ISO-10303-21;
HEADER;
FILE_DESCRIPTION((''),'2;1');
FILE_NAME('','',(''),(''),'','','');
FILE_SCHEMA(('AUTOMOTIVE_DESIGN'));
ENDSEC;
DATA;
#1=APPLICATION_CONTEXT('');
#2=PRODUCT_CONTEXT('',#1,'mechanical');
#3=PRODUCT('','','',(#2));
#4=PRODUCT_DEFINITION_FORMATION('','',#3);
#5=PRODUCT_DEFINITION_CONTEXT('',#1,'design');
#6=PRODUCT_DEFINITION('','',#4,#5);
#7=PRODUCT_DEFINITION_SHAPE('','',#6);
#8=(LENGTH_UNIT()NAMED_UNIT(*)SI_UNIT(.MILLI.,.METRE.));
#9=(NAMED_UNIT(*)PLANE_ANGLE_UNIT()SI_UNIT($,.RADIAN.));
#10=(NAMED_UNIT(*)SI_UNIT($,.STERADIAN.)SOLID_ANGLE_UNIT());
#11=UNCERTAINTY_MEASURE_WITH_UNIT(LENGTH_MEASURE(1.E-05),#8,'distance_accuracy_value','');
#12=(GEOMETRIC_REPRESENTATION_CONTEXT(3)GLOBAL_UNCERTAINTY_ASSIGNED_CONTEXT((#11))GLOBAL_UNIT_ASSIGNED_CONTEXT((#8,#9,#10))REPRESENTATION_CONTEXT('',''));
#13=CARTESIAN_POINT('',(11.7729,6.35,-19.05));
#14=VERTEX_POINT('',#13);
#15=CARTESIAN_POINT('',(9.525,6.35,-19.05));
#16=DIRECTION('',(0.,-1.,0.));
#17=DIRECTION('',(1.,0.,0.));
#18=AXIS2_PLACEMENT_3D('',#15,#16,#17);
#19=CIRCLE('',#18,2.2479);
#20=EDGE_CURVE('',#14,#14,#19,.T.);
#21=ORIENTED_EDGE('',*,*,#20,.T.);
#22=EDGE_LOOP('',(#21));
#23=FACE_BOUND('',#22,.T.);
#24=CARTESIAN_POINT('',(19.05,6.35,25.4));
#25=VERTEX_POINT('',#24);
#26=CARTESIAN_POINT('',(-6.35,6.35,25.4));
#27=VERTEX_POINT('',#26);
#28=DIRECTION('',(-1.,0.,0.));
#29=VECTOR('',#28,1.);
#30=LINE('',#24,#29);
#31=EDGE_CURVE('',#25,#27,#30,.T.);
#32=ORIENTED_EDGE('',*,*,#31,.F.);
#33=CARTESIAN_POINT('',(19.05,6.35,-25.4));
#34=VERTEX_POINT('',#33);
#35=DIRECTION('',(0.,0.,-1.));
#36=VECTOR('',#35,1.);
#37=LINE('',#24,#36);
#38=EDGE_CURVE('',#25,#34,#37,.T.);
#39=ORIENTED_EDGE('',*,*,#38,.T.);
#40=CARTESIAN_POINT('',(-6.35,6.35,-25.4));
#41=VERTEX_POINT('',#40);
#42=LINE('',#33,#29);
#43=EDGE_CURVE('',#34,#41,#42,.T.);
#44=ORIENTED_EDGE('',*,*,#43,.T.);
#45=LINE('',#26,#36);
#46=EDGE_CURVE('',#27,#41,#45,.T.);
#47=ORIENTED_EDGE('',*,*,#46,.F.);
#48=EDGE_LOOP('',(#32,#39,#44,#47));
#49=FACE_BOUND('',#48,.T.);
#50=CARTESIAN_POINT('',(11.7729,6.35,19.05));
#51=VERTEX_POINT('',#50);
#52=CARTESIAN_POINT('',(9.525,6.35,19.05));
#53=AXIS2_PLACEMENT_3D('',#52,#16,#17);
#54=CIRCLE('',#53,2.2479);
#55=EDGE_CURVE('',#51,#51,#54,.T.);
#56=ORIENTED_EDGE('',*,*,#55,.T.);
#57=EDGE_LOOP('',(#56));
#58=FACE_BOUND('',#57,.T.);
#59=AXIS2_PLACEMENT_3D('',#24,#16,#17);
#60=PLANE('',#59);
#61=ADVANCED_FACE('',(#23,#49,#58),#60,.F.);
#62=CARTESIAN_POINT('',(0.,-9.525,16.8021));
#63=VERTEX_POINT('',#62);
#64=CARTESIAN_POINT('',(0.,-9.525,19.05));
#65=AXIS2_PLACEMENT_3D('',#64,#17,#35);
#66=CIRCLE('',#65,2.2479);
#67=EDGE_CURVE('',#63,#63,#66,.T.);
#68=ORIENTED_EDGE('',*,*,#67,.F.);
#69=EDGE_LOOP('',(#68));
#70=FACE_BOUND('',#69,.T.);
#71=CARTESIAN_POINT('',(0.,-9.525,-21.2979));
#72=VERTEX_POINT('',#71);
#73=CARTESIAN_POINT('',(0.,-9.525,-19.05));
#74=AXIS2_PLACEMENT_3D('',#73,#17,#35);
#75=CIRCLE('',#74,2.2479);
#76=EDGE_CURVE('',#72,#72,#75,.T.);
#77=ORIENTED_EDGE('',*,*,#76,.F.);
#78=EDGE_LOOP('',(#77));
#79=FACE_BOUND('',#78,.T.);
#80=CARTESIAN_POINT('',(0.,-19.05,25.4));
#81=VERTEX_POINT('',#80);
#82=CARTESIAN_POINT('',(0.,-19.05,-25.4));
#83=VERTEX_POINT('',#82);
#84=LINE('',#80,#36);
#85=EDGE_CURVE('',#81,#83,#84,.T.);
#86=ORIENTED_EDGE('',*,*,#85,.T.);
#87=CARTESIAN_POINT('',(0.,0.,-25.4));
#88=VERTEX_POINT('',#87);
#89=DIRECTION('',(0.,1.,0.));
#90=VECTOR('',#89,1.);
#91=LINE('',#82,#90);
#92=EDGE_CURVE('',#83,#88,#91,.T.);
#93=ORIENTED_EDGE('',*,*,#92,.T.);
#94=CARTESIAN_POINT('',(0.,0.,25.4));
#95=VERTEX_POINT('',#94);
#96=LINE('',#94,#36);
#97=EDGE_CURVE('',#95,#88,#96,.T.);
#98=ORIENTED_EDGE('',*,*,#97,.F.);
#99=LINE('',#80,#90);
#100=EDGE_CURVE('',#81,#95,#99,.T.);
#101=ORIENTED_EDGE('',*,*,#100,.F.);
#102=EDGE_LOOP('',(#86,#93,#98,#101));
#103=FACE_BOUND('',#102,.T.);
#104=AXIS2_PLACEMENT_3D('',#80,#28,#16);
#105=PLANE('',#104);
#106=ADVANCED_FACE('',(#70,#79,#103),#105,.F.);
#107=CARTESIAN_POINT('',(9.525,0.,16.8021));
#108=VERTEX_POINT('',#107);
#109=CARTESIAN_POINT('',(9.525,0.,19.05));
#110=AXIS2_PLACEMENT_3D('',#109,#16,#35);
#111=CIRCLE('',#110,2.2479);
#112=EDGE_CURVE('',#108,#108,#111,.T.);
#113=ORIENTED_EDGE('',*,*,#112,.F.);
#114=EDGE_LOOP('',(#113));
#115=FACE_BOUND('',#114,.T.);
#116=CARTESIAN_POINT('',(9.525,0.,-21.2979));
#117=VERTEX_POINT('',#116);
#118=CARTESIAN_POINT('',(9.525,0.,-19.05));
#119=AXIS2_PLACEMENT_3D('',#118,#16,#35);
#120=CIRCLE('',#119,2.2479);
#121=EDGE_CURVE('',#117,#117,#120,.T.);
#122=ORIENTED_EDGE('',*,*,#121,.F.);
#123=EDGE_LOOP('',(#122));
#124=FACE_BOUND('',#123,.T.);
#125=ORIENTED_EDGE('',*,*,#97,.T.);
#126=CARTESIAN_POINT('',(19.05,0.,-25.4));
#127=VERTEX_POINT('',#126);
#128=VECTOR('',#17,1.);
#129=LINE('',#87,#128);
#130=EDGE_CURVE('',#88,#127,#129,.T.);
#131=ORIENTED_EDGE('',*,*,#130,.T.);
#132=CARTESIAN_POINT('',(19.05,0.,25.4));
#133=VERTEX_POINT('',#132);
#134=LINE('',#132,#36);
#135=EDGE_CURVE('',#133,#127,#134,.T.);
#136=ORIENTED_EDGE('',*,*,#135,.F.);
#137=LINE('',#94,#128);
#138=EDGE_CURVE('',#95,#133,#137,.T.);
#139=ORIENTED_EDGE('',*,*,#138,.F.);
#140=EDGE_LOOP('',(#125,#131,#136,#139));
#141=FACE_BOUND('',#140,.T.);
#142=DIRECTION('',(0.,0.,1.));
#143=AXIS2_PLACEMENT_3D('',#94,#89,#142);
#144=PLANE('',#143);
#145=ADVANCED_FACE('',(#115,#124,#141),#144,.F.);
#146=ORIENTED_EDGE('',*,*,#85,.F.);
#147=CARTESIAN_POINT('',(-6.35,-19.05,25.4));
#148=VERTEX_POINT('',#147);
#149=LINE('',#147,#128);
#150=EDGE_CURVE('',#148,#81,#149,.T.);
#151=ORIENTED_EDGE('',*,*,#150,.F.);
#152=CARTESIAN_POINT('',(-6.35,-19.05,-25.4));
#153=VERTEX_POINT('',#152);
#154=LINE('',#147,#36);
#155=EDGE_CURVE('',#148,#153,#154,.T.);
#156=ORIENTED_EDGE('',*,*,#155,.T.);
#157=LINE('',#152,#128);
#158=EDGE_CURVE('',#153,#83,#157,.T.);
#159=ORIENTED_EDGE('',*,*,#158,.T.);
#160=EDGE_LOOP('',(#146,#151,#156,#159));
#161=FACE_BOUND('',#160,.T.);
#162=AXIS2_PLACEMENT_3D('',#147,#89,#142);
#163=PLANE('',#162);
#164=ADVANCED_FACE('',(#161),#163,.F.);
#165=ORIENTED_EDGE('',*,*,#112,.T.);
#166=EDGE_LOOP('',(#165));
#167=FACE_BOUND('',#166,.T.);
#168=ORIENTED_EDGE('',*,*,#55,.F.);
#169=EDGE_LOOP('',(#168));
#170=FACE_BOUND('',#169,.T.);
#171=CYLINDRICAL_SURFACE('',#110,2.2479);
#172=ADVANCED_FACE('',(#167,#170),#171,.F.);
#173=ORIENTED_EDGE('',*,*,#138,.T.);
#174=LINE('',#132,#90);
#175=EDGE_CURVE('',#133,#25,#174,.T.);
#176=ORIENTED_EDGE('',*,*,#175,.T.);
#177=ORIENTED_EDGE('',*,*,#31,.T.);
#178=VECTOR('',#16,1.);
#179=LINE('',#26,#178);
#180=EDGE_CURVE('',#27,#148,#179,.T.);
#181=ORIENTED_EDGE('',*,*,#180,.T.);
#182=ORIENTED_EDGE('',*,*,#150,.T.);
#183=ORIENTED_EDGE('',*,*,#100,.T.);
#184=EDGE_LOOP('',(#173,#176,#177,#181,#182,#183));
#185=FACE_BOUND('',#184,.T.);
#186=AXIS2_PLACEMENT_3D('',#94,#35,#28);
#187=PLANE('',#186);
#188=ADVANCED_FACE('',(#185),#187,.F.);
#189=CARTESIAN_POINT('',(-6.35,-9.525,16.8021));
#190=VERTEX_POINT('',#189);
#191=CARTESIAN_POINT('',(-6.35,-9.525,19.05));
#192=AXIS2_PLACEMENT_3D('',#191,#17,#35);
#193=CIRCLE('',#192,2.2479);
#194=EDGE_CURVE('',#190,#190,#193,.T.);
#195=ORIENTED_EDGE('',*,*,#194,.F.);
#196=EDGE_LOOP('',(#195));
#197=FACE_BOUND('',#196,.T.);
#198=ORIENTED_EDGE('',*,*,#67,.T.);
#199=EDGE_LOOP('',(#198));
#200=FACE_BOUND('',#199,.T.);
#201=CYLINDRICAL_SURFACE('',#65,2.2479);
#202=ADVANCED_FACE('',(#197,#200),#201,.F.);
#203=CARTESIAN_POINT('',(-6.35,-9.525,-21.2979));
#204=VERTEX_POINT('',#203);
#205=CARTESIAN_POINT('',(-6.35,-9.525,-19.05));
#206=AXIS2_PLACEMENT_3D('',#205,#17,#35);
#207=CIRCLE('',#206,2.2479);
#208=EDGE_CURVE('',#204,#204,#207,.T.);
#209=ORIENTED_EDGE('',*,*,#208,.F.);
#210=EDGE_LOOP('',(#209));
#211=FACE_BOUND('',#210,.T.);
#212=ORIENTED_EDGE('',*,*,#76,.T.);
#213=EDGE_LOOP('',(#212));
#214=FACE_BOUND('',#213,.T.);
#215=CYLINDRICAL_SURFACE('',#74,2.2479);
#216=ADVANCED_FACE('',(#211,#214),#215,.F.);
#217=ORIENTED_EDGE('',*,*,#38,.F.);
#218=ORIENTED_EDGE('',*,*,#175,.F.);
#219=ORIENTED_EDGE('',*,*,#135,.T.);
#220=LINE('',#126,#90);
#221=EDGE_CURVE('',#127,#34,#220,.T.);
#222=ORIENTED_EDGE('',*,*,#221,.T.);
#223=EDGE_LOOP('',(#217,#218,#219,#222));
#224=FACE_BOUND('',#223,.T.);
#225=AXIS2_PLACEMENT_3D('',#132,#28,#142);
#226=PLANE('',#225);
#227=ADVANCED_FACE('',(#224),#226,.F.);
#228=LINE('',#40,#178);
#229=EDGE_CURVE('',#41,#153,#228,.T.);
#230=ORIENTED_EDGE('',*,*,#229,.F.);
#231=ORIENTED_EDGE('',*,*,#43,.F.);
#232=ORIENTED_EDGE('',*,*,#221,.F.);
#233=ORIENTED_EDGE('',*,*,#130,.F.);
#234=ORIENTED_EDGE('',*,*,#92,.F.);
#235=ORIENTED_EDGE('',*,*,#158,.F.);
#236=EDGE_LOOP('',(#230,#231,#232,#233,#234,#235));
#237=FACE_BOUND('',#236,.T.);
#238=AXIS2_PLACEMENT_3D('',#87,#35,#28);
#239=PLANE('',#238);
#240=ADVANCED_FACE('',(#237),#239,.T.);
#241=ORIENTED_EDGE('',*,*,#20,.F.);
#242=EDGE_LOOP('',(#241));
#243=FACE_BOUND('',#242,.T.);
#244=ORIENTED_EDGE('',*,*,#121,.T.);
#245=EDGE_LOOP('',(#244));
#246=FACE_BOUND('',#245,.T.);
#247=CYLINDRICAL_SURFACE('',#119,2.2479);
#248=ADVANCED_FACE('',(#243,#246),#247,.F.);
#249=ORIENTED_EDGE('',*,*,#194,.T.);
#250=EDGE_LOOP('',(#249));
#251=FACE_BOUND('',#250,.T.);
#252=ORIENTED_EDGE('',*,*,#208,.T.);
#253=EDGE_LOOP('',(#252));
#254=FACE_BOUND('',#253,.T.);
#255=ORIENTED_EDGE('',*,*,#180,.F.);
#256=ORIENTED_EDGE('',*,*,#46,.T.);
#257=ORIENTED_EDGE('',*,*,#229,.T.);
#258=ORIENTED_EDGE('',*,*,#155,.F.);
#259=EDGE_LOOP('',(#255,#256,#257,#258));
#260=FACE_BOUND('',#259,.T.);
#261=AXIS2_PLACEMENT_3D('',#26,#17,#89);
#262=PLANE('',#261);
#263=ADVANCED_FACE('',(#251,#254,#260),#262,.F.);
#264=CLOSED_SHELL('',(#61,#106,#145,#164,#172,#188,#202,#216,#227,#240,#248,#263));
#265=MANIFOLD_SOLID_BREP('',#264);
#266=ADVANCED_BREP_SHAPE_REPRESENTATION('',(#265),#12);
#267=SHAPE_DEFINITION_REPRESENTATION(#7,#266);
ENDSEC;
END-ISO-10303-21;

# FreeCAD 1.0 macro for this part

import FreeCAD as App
import Part
import Sketcher

V = App.Vector
Q = App.Units.Quantity

doc = App.newDocument("Part")
body = doc.addObject("PartDesign::Body", "Body")

sketch1 = body.newObject("Sketcher::SketchObject", "Sketch")
sketch1.AttachmentSupport = (doc.getObject("XY_Plane"), [""])
sketch1.MapMode = "FlatFace"
sketch1.addGeometry([
    Part.LineSegment(V(0, 0, 0), V(19, 0, 0)),
    Part.LineSegment(V(19, 0, 0), V(19, 6, 0)),
    Part.LineSegment(V(19, 6, 0), V(-6, 6, 0)),
    Part.LineSegment(V(-6, 6, 0), V(-6, -19, 0)),
    Part.LineSegment(V(-6, -19, 0), V(0, -19, 0)),
    Part.LineSegment(V(0, -19, 0), V(0, 0, 0)),
], False)
sketch1.addConstraint([
    Sketcher.Constraint("Coincident", 0, 2, 1, 1),
    Sketcher.Constraint("Coincident", 1, 2, 2, 1),
    Sketcher.Constraint("Coincident", 2, 2, 3, 1),
    Sketcher.Constraint("Coincident", 3, 2, 4, 1),
    Sketcher.Constraint("Coincident", 4, 2, 5, 1),
    Sketcher.Constraint("Coincident", 5, 2, 0, 1),
    Sketcher.Constraint("Horizontal", 0),
    Sketcher.Constraint("Vertical", 1),
    Sketcher.Constraint("Horizontal", 2),
    Sketcher.Constraint("Vertical", 3),
    Sketcher.Constraint("Horizontal", 4),
    Sketcher.Constraint("Vertical", 5),
    Sketcher.Constraint("Coincident", 5, 2, -1, 1),
    Sketcher.Constraint("Equal", 4, 1),
    Sketcher.Constraint("Equal", 2, 3),
    Sketcher.Constraint("DistanceX", 2, 2, 2, 1, Q("1 in")),
    Sketcher.Constraint("DistanceX", 0, 1, 0, 2, Q("0.75 in")),
])
pad1 = body.newObject("PartDesign::Pad", "Pad")
pad1.Profile = sketch1
pad1.Length = Q("2 in")
pad1.Midplane = True

sketch2 = body.newObject("Sketcher::SketchObject", "Sketch001")
sketch2.AttachmentSupport = (doc.getObject("XZ_Plane"), [""])
sketch2.MapMode = "FlatFace"
sketch2.addGeometry([
    Part.Circle(V(9.5, 19.1, 0), V(0, 0, 1), 2.2),
    Part.Circle(V(9.5, -19.1, 0), V(0, 0, 1), 2.2),
], False)
sketch2.addConstraint([
    Sketcher.Constraint("Equal", 0, 1),
    Sketcher.Constraint("Symmetric", 0, 3, 1, 3, -1),
    Sketcher.Constraint("Diameter", 0, Q("0.177 in")),
    Sketcher.Constraint("DistanceY", 1, 3, 0, 3, Q("1.5 in")),
    Sketcher.Constraint("DistanceX", -1, 1, 0, 3, Q("0.375 in")),
])
doc.recompute()
hole = body.newObject("PartDesign::Hole", "Hole")
hole.Profile = sketch2
hole.ThreadType = "None"
hole.Diameter = Q("0.177 in")
hole.DepthType = "ThroughAll"

sketch3 = body.newObject("Sketcher::SketchObject", "Sketch002")
sketch3.AttachmentSupport = (doc.getObject("YZ_Plane"), [""])
sketch3.MapMode = "FlatFace"
sketch3.addGeometry([
    Part.Circle(V(-9.5, -19.1, 0), V(0, 0, 1), 2.2),
    Part.Circle(V(-9.5, 19.1, 0), V(0, 0, 1), 2.2),
], False)
sketch3.addConstraint([
    Sketcher.Constraint("Equal", 0, 1),
    Sketcher.Constraint("Symmetric", 0, 3, 1, 3, -1),
    Sketcher.Constraint("Diameter", 0, Q("0.177 in")),
    Sketcher.Constraint("DistanceY", 0, 3, 1, 3, Q("1.5 in")),
    Sketcher.Constraint("DistanceX", 0, 3, -1, 1, Q("0.375 in")),
])
doc.recompute()
hole2 = body.newObject("PartDesign::Hole", "Hole001")
hole2.Profile = sketch3
hole2.ThreadType = "None"
hole2.Diameter = Q("0.177 in")
hole2.DepthType = "Dimension"
hole2.Depth = Q("0.25 in")
hole2.DrillPoint = "Angled"
hole2.DrillPointAngle = 118

doc.recompute()
